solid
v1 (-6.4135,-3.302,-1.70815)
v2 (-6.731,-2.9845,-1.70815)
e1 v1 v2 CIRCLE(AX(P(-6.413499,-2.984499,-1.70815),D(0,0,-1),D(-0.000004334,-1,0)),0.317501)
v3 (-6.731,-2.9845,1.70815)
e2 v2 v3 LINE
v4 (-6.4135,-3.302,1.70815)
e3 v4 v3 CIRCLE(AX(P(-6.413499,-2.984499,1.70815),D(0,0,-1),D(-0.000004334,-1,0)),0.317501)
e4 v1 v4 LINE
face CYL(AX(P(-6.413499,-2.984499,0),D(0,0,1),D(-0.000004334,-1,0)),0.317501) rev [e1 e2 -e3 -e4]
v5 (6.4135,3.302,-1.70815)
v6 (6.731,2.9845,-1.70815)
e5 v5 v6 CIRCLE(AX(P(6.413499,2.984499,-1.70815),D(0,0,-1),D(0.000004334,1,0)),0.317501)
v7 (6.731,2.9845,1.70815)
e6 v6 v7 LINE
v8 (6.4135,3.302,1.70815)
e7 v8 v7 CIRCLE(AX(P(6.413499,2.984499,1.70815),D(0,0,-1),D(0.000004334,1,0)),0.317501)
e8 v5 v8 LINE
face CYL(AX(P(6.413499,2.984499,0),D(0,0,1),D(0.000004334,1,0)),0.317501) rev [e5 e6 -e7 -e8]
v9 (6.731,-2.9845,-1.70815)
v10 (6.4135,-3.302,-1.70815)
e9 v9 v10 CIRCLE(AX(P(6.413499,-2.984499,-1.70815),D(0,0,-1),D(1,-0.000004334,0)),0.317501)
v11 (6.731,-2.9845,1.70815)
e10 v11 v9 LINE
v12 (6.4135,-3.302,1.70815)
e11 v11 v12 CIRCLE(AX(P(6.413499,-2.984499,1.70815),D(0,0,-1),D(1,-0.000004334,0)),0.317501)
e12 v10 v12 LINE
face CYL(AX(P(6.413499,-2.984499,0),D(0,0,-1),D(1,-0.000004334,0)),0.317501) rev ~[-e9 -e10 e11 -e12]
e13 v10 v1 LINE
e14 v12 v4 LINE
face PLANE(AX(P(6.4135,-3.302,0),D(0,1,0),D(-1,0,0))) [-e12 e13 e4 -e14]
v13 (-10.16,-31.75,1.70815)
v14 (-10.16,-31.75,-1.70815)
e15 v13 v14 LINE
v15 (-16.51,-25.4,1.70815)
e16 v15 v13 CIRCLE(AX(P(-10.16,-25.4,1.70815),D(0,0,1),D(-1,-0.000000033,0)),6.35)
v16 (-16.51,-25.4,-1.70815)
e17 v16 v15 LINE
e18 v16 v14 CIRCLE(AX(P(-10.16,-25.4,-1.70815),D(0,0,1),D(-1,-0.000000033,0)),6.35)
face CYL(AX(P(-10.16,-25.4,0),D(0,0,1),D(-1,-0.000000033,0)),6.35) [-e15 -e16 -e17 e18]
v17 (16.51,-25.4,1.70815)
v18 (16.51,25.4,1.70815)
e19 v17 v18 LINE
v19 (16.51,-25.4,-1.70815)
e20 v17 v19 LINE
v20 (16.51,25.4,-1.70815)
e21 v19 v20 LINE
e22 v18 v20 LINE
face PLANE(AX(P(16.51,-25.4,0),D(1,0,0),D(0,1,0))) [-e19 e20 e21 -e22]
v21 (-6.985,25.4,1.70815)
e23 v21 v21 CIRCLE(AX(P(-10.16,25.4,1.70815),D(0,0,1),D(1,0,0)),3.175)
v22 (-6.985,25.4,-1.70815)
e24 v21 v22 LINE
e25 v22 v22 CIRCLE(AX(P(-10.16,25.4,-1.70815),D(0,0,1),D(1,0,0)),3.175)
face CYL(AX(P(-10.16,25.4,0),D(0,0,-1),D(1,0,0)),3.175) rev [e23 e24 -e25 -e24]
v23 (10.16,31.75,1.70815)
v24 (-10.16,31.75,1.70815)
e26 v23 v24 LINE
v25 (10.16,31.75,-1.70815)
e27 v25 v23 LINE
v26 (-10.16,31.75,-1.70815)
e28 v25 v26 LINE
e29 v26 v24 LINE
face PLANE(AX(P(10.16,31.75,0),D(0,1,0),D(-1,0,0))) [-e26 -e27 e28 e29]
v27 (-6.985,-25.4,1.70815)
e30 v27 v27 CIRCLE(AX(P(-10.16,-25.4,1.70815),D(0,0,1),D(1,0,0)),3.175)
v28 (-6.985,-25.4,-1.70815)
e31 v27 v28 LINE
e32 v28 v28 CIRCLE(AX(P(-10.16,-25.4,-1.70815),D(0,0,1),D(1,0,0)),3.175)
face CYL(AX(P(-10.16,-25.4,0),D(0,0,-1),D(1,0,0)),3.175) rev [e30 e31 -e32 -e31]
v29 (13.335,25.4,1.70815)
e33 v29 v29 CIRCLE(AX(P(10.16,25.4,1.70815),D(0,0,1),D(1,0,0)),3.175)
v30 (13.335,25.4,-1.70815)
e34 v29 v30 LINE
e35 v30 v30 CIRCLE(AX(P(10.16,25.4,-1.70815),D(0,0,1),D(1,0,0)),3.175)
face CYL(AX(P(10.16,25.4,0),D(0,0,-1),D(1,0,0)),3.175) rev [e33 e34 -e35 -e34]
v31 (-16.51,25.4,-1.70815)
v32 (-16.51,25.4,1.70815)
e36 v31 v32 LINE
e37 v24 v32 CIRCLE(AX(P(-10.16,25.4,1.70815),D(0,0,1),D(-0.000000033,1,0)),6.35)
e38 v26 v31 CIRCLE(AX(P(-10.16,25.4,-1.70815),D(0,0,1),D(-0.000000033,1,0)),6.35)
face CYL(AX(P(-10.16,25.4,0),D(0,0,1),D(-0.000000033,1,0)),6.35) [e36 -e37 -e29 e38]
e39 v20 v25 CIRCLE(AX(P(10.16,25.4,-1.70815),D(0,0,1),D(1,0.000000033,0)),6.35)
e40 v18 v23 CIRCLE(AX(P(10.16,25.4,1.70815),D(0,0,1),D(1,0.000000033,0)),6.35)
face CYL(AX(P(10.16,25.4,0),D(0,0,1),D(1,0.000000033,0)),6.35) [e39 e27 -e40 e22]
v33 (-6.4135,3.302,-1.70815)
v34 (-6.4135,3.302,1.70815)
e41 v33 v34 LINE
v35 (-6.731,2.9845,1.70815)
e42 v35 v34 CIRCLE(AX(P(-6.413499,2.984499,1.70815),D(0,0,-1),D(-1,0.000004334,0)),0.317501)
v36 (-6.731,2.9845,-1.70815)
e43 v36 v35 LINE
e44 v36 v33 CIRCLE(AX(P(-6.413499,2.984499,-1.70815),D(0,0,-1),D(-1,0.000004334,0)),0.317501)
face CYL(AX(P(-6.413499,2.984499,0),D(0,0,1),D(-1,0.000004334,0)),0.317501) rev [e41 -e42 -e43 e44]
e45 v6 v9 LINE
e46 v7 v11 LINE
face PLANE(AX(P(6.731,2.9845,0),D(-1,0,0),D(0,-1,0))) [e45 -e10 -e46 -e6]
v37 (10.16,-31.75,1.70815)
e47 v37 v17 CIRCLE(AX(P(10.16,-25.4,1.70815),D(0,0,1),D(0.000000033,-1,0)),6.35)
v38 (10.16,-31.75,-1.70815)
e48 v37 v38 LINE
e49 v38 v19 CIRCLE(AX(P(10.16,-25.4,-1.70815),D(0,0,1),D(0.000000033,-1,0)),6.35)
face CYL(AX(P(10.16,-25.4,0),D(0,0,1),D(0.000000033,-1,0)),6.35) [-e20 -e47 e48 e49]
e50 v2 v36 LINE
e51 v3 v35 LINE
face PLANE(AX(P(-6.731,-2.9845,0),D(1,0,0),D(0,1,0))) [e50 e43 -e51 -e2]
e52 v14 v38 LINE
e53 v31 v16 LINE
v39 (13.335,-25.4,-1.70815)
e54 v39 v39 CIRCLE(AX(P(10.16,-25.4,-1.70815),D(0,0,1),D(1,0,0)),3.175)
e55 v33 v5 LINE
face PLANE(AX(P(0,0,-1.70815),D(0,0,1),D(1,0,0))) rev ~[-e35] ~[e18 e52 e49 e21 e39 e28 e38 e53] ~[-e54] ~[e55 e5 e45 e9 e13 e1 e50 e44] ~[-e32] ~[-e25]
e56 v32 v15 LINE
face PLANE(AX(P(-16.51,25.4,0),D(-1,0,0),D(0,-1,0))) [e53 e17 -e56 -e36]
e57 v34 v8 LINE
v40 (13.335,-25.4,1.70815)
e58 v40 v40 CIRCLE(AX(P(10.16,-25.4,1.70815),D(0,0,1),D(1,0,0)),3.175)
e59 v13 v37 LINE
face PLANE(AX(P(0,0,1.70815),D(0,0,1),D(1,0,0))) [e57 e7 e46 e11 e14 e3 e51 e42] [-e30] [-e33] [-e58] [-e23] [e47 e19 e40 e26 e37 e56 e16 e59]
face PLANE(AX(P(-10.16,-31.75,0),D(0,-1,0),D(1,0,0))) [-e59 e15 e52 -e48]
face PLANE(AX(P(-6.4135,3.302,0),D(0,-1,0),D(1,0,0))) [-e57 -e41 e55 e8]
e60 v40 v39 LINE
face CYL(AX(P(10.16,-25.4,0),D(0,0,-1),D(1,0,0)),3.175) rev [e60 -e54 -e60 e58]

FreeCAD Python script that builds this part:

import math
import FreeCAD as App
import Part
import Sketcher

V = App.Vector
Q = App.Units.Quantity

doc = App.newDocument("Part")
params = doc.addObject("Spreadsheet::Sheet", "Params")
for row, (alias, value) in enumerate([
    ("sketch1_diameter", "0.25 in"),
    ("sketch1_height", "2 in"),
    ("sketch1_radius", "0.25 in"),
    ("sketch1_width", "0.8 in"),
    ("sketch1_width2", "0.505 in"),
    ("pad1_length", "0.1345 in"),
], start=1):
    params.set(f"A{row}", alias)
    params.set(f"B{row}", "=" + value)
    params.setAlias(f"B{row}", alias)

body = doc.addObject("PartDesign::Body", "Body")

# Sketch on XY plane
sketch1 = body.newObject("Sketcher::SketchObject", "Sketch")
sketch1.AttachmentSupport = (doc.getObject("XY_Plane"), [""])
sketch1.MapMode = "FlatFace"
sketch1.addGeometry([
    Part.ArcOfCircle(Part.Circle(V(10.16, 25.4, 0), V(0, 0, 1), 6.35), math.radians(0), math.radians(90)),  # 0
    Part.LineSegment(V(10.16, 31.75, 0), V(-10.16, 31.75, 0)),  # 1
    Part.ArcOfCircle(Part.Circle(V(-10.16, 25.4, 0), V(0, 0, 1), 6.35), math.radians(90), math.radians(180)),  # 2
    Part.LineSegment(V(-16.51, 25.4, 0), V(-16.51, -25.4, 0)),  # 3
    Part.ArcOfCircle(Part.Circle(V(-10.16, -25.4, 0), V(0, 0, 1), 6.35), math.radians(-180), math.radians(-90)),  # 4
    Part.LineSegment(V(-10.16, -31.75, 0), V(10.16, -31.75, 0)),  # 5
    Part.ArcOfCircle(Part.Circle(V(10.16, -25.4, 0), V(0, 0, 1), 6.35), math.radians(-90), math.radians(0)),  # 6
    Part.LineSegment(V(16.51, -25.4, 0), V(16.51, 25.4, 0)),  # 7
    Part.Circle(V(-10.16, -25.4, 0), V(0, 0, 1), 3.17),  # 8
    Part.Circle(V(10.16, -25.4, 0), V(0, 0, 1), 3.17),  # 9
    Part.ArcOfCircle(Part.Circle(V(-6.41, 2.98, 0), V(0, 0, 1), 0.32), math.radians(90), math.radians(180)),  # 10
    Part.LineSegment(V(-6.41, 3.3, 0), V(6.41, 3.3, 0)),  # 11
    Part.ArcOfCircle(Part.Circle(V(6.41, 2.98, 0), V(0, 0, 1), 0.32), math.radians(0), math.radians(90)),  # 12
    Part.LineSegment(V(6.73, 2.98, 0), V(6.73, -2.98, 0)),  # 13
    Part.ArcOfCircle(Part.Circle(V(6.41, -2.98, 0), V(0, 0, 1), 0.32), math.radians(-90), math.radians(0)),  # 14
    Part.LineSegment(V(6.41, -3.3, 0), V(-6.41, -3.3, 0)),  # 15
    Part.ArcOfCircle(Part.Circle(V(-6.41, -2.98, 0), V(0, 0, 1), 0.32), math.radians(-180), math.radians(-90)),  # 16
    Part.LineSegment(V(-6.73, -2.98, 0), V(-6.73, 2.98, 0)),  # 17
    Part.Circle(V(-10.16, 25.4, 0), V(0, 0, 1), 3.17),  # 18
    Part.Circle(V(10.16, 25.4, 0), V(0, 0, 1), 3.17),  # 19
], False)
sketch1.addConstraint([
    Sketcher.Constraint("Tangent", 0, 2, 1, 1),
    Sketcher.Constraint("Tangent", 1, 2, 2, 1),
    Sketcher.Constraint("Tangent", 2, 2, 3, 1),
    Sketcher.Constraint("Tangent", 3, 2, 4, 1),
    Sketcher.Constraint("Tangent", 4, 2, 5, 1),
    Sketcher.Constraint("Tangent", 5, 2, 6, 1),
    Sketcher.Constraint("Tangent", 6, 2, 7, 1),
    Sketcher.Constraint("Tangent", 7, 2, 0, 1),
    Sketcher.Constraint("Coincident", 10, 1, 11, 1),
    Sketcher.Constraint("Coincident", 11, 2, 12, 2),
    Sketcher.Constraint("Coincident", 12, 1, 13, 1),
    Sketcher.Constraint("Coincident", 13, 2, 14, 2),
    Sketcher.Constraint("Coincident", 14, 1, 15, 1),
    Sketcher.Constraint("Coincident", 15, 2, 16, 2),
    Sketcher.Constraint("Coincident", 16, 1, 17, 1),
    Sketcher.Constraint("Coincident", 17, 2, 10, 2),
    Sketcher.Constraint("Horizontal", 1),
    Sketcher.Constraint("Vertical", 3),
    Sketcher.Constraint("Horizontal", 5),
    Sketcher.Constraint("Vertical", 7),
    Sketcher.Constraint("Horizontal", 11),
    Sketcher.Constraint("Vertical", 13),
    Sketcher.Constraint("Horizontal", 15),
    Sketcher.Constraint("Vertical", 17),
    Sketcher.Constraint("Coincident", 8, 3, 4, 3),
    Sketcher.Constraint("Coincident", 9, 3, 6, 3),
    Sketcher.Constraint("Coincident", 18, 3, 2, 3),
    Sketcher.Constraint("Coincident", 19, 3, 0, 3),
    Sketcher.Constraint("Equal", 0, 2),
    Sketcher.Constraint("Equal", 2, 4),
    Sketcher.Constraint("Equal", 4, 6),
    Sketcher.Constraint("Equal", 8, 9),
    Sketcher.Constraint("Equal", 10, 12),
    Sketcher.Constraint("Equal", 12, 14),
    Sketcher.Constraint("Equal", 14, 16),
    Sketcher.Constraint("Equal", 9, 18),
    Sketcher.Constraint("Equal", 18, 19),
    Sketcher.Constraint("Symmetric", 0, 3, 4, 3, -1, 1),
    Sketcher.Constraint("Symmetric", 10, 3, 14, 3, -1, 1),
    Sketcher.Constraint("Horizontal", 10, 3, 12, 1),
    Sketcher.Constraint("Horizontal", 16, 3, 13, 2),
    Sketcher.Constraint("Horizontal", 13, 2, 16, 1),
    Sketcher.Constraint("Horizontal", 12, 1, 17, 2),
    Sketcher.Constraint("Vertical", 16, 3, 10, 1),
    Sketcher.Constraint("Vertical", 14, 3, 11, 2),
    Sketcher.Constraint("Vertical", 11, 2, 14, 1),
    Sketcher.Constraint("Vertical", 10, 1, 15, 2),
    Sketcher.Constraint("Diameter", 8, Q("0.25 in")),
    Sketcher.Constraint("DistanceY", 3, 2, 3, 1, Q("2 in")),
    Sketcher.Constraint("Radius", 0, Q("0.25 in")),
    Sketcher.Constraint("DistanceX", 1, 2, 1, 1, Q("0.8 in")),
    Sketcher.Constraint("Radius", 10, Q("0.0125001 in")),
    Sketcher.Constraint("DistanceX", 11, 1, 11, 2, Q("0.505 in")),
    Sketcher.Constraint("DistanceY", 13, 2, 13, 1, Q("0.235 in")),
])
sketch1.setExpression("Constraints[47]", "Params.sketch1_diameter")
sketch1.setExpression("Constraints[48]", "Params.sketch1_height")
sketch1.setExpression("Constraints[49]", "Params.sketch1_radius")
sketch1.setExpression("Constraints[50]", "Params.sketch1_width")
sketch1.setExpression("Constraints[52]", "Params.sketch1_width2")
pad1 = body.newObject("PartDesign::Pad", "Pad")
pad1.Profile = sketch1
pad1.setExpression("Length", "Params.pad1_length")
pad1.Midplane = True

doc.recompute()
